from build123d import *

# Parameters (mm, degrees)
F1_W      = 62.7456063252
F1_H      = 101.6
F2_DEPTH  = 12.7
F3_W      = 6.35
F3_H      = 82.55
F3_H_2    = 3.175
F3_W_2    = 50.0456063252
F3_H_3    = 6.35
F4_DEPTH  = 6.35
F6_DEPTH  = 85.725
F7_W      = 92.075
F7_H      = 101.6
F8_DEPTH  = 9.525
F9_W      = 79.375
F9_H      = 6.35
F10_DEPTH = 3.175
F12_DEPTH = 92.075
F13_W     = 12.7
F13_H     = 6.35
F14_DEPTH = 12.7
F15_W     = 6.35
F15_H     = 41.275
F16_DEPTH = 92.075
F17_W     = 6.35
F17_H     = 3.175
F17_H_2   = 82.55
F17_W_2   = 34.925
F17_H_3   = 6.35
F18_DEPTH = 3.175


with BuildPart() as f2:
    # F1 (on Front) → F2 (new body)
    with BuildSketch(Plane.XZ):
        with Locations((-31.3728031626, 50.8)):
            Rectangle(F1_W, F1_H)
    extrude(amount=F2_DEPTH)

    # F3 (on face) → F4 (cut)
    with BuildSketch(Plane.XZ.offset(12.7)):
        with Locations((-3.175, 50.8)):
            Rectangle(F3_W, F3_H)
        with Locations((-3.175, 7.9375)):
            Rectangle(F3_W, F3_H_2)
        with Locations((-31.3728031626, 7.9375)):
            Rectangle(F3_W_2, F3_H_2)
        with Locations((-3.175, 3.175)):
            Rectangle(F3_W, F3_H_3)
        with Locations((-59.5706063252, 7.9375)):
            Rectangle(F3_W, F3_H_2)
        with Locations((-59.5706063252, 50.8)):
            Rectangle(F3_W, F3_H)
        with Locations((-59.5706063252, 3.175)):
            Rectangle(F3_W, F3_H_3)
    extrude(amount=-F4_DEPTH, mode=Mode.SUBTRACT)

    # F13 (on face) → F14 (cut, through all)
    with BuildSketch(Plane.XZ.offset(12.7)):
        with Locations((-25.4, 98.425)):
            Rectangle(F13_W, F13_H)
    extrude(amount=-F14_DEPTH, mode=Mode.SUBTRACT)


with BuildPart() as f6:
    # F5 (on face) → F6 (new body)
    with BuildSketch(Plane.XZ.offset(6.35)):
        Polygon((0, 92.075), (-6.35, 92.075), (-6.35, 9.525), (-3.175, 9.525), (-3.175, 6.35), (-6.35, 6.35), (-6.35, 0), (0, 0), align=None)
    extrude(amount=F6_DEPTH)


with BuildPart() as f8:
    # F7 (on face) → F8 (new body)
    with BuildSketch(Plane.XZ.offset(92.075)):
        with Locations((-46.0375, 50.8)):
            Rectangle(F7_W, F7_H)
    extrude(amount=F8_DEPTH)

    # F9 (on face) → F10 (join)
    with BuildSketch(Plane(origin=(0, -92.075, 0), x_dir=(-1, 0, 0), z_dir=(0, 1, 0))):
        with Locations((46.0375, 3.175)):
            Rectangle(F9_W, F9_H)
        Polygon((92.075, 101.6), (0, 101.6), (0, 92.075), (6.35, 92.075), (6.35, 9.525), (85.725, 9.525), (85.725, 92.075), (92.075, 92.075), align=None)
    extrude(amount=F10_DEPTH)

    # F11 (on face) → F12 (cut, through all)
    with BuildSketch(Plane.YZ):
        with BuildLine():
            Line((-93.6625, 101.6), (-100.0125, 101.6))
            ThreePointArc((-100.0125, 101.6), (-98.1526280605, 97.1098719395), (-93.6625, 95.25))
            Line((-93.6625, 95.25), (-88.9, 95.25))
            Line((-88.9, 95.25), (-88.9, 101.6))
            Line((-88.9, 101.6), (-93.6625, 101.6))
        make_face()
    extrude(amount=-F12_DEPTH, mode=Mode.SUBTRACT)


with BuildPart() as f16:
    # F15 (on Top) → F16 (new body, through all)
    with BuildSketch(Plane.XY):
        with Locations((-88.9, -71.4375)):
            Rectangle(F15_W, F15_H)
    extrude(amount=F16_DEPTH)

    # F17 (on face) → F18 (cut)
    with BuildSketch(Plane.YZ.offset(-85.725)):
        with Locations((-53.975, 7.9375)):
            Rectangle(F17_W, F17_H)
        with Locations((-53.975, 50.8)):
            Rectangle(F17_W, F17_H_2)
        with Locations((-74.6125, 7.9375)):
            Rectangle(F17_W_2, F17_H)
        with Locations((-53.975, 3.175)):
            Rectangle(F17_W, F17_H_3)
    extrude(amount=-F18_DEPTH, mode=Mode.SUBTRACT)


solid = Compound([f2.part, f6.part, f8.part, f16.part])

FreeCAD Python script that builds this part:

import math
import FreeCAD as App
import Part
import Sketcher
from FreeCAD import Vector
Q = App.Units.Quantity

doc = App.newDocument("Part")
body = doc.addObject("PartDesign::Body", "Body")

# Sketch on XZ plane
sketch1 = body.newObject("Sketcher::SketchObject", "Sketch")
sketch1.AttachmentSupport = (doc.getObject("XZ_Plane"), [""])
sketch1.MapMode = "FlatFace"
sketch1.addGeometry([
    Part.LineSegment(Vector(-62.745606, 101.6, 0), Vector(-62.745606, 0, 0)),
    Part.LineSegment(Vector(-62.745606, 0, 0), Vector(0, 0, 0)),
    Part.LineSegment(Vector(0, 0, 0), Vector(0, 101.6, 0)),
    Part.LineSegment(Vector(0, 101.6, 0), Vector(-62.745606, 101.6, 0)),
], False)
sketch1.addConstraint([
    Sketcher.Constraint("Coincident", 0, 2, 1, 1),
    Sketcher.Constraint("Coincident", 1, 2, 2, 1),
    Sketcher.Constraint("Coincident", 2, 2, 3, 1),
    Sketcher.Constraint("Coincident", 3, 2, 0, 1),
    Sketcher.Constraint("Vertical", 0),
    Sketcher.Constraint("Horizontal", 1),
    Sketcher.Constraint("Vertical", 2),
    Sketcher.Constraint("Horizontal", 3),
    Sketcher.Constraint("Coincident", 1, 2, -1, 1),
    Sketcher.Constraint("DistanceY", 0, 2, 0, 1, Q("4 in")),
    Sketcher.Constraint("DistanceX", 1, 1, 1, 2, 62.745606),
])
pad1 = body.newObject("PartDesign::Pad", "Pad")
pad1.Profile = sketch1
pad1.Length = Q("0.5 in")

# Sketch on XZ plane
sketch2 = body.newObject("Sketcher::SketchObject", "Sketch001")
sketch2.AttachmentSupport = (doc.getObject("XZ_Plane"), [""])
sketch2.MapMode = "FlatFace"
sketch2.AttachmentOffset = App.Placement(Vector(0, 0, 0.5 * 25.4), App.Rotation())
sketch2.addGeometry([
    Part.LineSegment(Vector(-6.35, 92.075, 0), Vector(-6.35, 9.525, 0)),  # 0
    Part.LineSegment(Vector(-6.35, 9.525, 0), Vector(-56.395606, 9.525, 0)),  # 1
    Part.LineSegment(Vector(-56.395606, 9.525, 0), Vector(-56.395606, 92.075, 0)),  # 2
    Part.LineSegment(Vector(-56.395606, 92.075, 0), Vector(-62.745606, 92.075, 0)),  # 3
    Part.LineSegment(Vector(-62.745606, 92.075, 0), Vector(-62.745606, 0, 0)),  # 4
    Part.LineSegment(Vector(-62.745606, 0, 0), Vector(-56.395606, 0, 0)),  # 5
    Part.LineSegment(Vector(-56.395606, 0, 0), Vector(-56.395606, 6.35, 0)),  # 6
    Part.LineSegment(Vector(-56.395606, 6.35, 0), Vector(-6.35, 6.35, 0)),  # 7
    Part.LineSegment(Vector(-6.35, 6.35, 0), Vector(-6.35, 0, 0)),  # 8
    Part.LineSegment(Vector(-6.35, 0, 0), Vector(0, 0, 0)),  # 9
    Part.LineSegment(Vector(0, 0, 0), Vector(0, 92.075, 0)),  # 10
    Part.LineSegment(Vector(0, 92.075, 0), Vector(-6.35, 92.075, 0)),  # 11
], False)
sketch2.addConstraint([
    Sketcher.Constraint("Coincident", 0, 2, 1, 1),
    Sketcher.Constraint("Coincident", 1, 2, 2, 1),
    Sketcher.Constraint("Coincident", 2, 2, 3, 1),
    Sketcher.Constraint("Coincident", 3, 2, 4, 1),
    Sketcher.Constraint("Coincident", 4, 2, 5, 1),
    Sketcher.Constraint("Coincident", 5, 2, 6, 1),
    Sketcher.Constraint("Coincident", 6, 2, 7, 1),
    Sketcher.Constraint("Coincident", 7, 2, 8, 1),
    Sketcher.Constraint("Coincident", 8, 2, 9, 1),
    Sketcher.Constraint("Coincident", 9, 2, 10, 1),
    Sketcher.Constraint("Coincident", 10, 2, 11, 1),
    Sketcher.Constraint("Coincident", 11, 2, 0, 1),
    Sketcher.Constraint("Vertical", 0),
    Sketcher.Constraint("Horizontal", 1),
    Sketcher.Constraint("Vertical", 2),
    Sketcher.Constraint("Horizontal", 3),
    Sketcher.Constraint("Vertical", 4),
    Sketcher.Constraint("Horizontal", 5),
    Sketcher.Constraint("Vertical", 6),
    Sketcher.Constraint("Horizontal", 7),
    Sketcher.Constraint("Vertical", 8),
    Sketcher.Constraint("Horizontal", 9),
    Sketcher.Constraint("Vertical", 10),
    Sketcher.Constraint("Horizontal", 11),
    Sketcher.Constraint("Coincident", 9, 2, -1, 1),
    Sketcher.Constraint("PointOnObject", 4, 2, -1),
    Sketcher.Constraint("Horizontal", 3, 2, 10, 2),
    Sketcher.Constraint("Vertical", 2, 2, 5, 2),
    Sketcher.Constraint("Vertical", 0, 2, 7, 2),
    Sketcher.Constraint("Equal", 5, 9),
    Sketcher.Constraint("Equal", 11, 6),
    Sketcher.Constraint("DistanceX", 3, 2, 3, 1, Q("0.25 in")),
    Sketcher.Constraint("DistanceY", 0, 2, 0, 1, Q("3.25 in")),
    Sketcher.Constraint("DistanceY", 4, 2, 4, 1, Q("3.625 in")),
    Sketcher.Constraint("DistanceX", 1, 2, 1, 1, 50.045606),
])
pocket1 = body.newObject("PartDesign::Pocket", "Pocket")
pocket1.Profile = sketch2
pocket1.Length = Q("0.25 in")

# Sketch on XZ plane
sketch3 = body.newObject("Sketcher::SketchObject", "Sketch002")
sketch3.AttachmentSupport = (doc.getObject("XZ_Plane"), [""])
sketch3.MapMode = "FlatFace"
sketch3.AttachmentOffset = App.Placement(Vector(0, 0, 0.5 * 25.4), App.Rotation())
sketch3.addGeometry([
    Part.LineSegment(Vector(-31.75, 101.6, 0), Vector(-31.75, 95.25, 0)),
    Part.LineSegment(Vector(-31.75, 95.25, 0), Vector(-19.05, 95.25, 0)),
    Part.LineSegment(Vector(-19.05, 95.25, 0), Vector(-19.05, 101.6, 0)),
    Part.LineSegment(Vector(-19.05, 101.6, 0), Vector(-31.75, 101.6, 0)),
], False)
sketch3.addConstraint([
    Sketcher.Constraint("Coincident", 0, 2, 1, 1),
    Sketcher.Constraint("Coincident", 1, 2, 2, 1),
    Sketcher.Constraint("Coincident", 2, 2, 3, 1),
    Sketcher.Constraint("Coincident", 3, 2, 0, 1),
    Sketcher.Constraint("Vertical", 0),
    Sketcher.Constraint("Horizontal", 1),
    Sketcher.Constraint("Vertical", 2),
    Sketcher.Constraint("Horizontal", 3),
    Sketcher.Constraint("DistanceX", 1, 1, 1, 2, Q("0.5 in")),
    Sketcher.Constraint("DistanceY", -1, 1, 2, 2, Q("4 in")),
    Sketcher.Constraint("DistanceY", 0, 2, 0, 1, Q("0.25 in")),
    Sketcher.Constraint("DistanceX", 0, 2, -1, 1, Q("1.25 in")),
])
pocket2 = body.newObject("PartDesign::Pocket", "Pocket001")
pocket2.Profile = sketch3
pocket2.Type = "ThroughAll"
body2 = doc.addObject("PartDesign::Body", "Body001")

# Sketch on XZ plane
sketch4 = body2.newObject("Sketcher::SketchObject", "Sketch003")
sketch4.AttachmentSupport = (doc.getObject("XZ_Plane001"), [""])
sketch4.MapMode = "FlatFace"
sketch4.AttachmentOffset = App.Placement(Vector(0, 0, 0.25 * 25.4), App.Rotation())
sketch4.addGeometry([
    Part.LineSegment(Vector(0, 92.075, 0), Vector(-6.35, 92.075, 0)),  # 0
    Part.LineSegment(Vector(-6.35, 92.075, 0), Vector(-6.35, 9.525, 0)),  # 1
    Part.LineSegment(Vector(-6.35, 9.525, 0), Vector(-3.175, 9.525, 0)),  # 2
    Part.LineSegment(Vector(-3.175, 9.525, 0), Vector(-3.175, 6.35, 0)),  # 3
    Part.LineSegment(Vector(-3.175, 6.35, 0), Vector(-6.35, 6.35, 0)),  # 4
    Part.LineSegment(Vector(-6.35, 6.35, 0), Vector(-6.35, 0, 0)),  # 5
    Part.LineSegment(Vector(-6.35, 0, 0), Vector(0, 0, 0)),  # 6
    Part.LineSegment(Vector(0, 0, 0), Vector(0, 92.075, 0)),  # 7
], False)
sketch4.addConstraint([
    Sketcher.Constraint("Coincident", 0, 2, 1, 1),
    Sketcher.Constraint("Coincident", 1, 2, 2, 1),
    Sketcher.Constraint("Coincident", 2, 2, 3, 1),
    Sketcher.Constraint("Coincident", 3, 2, 4, 1),
    Sketcher.Constraint("Coincident", 4, 2, 5, 1),
    Sketcher.Constraint("Coincident", 5, 2, 6, 1),
    Sketcher.Constraint("Coincident", 6, 2, 7, 1),
    Sketcher.Constraint("Coincident", 7, 2, 0, 1),
    Sketcher.Constraint("Horizontal", 0),
    Sketcher.Constraint("Vertical", 1),
    Sketcher.Constraint("Horizontal", 2),
    Sketcher.Constraint("Vertical", 3),
    Sketcher.Constraint("Horizontal", 4),
    Sketcher.Constraint("Vertical", 5),
    Sketcher.Constraint("Horizontal", 6),
    Sketcher.Constraint("Vertical", 7),
    Sketcher.Constraint("Coincident", 6, 2, -1, 1),
    Sketcher.Constraint("Vertical", 1, 2, 4, 2),
    Sketcher.Constraint("Equal", 4, 3),
    Sketcher.Constraint("Equal", 6, 5),
    Sketcher.Constraint("DistanceX", 0, 2, 0, 1, Q("0.25 in")),
    Sketcher.Constraint("DistanceY", 1, 2, 1, 1, Q("3.25 in")),
    Sketcher.Constraint("DistanceX", 2, 1, 2, 2, Q("0.125 in")),
])
pad2 = body2.newObject("PartDesign::Pad", "Pad001")
pad2.Profile = sketch4
pad2.Length = Q("3.375 in")
body3 = doc.addObject("PartDesign::Body", "Body002")

# Sketch on XZ plane
sketch5 = body3.newObject("Sketcher::SketchObject", "Sketch004")
sketch5.AttachmentSupport = (doc.getObject("XZ_Plane002"), [""])
sketch5.MapMode = "FlatFace"
sketch5.AttachmentOffset = App.Placement(Vector(0, 0, 3.625 * 25.4), App.Rotation())
sketch5.addGeometry([
    Part.LineSegment(Vector(-92.075, 101.6, 0), Vector(-92.075, 0, 0)),
    Part.LineSegment(Vector(-92.075, 0, 0), Vector(0, 0, 0)),
    Part.LineSegment(Vector(0, 0, 0), Vector(0, 101.6, 0)),
    Part.LineSegment(Vector(0, 101.6, 0), Vector(-92.075, 101.6, 0)),
], False)
sketch5.addConstraint([
    Sketcher.Constraint("Coincident", 0, 2, 1, 1),
    Sketcher.Constraint("Coincident", 1, 2, 2, 1),
    Sketcher.Constraint("Coincident", 2, 2, 3, 1),
    Sketcher.Constraint("Coincident", 3, 2, 0, 1),
    Sketcher.Constraint("Vertical", 0),
    Sketcher.Constraint("Horizontal", 1),
    Sketcher.Constraint("Vertical", 2),
    Sketcher.Constraint("Horizontal", 3),
    Sketcher.Constraint("Coincident", 1, 2, -1, 1),
    Sketcher.Constraint("DistanceY", 0, 2, 0, 1, Q("4 in")),
    Sketcher.Constraint("DistanceX", 1, 1, 1, 2, Q("3.625 in")),
])
pad3 = body3.newObject("PartDesign::Pad", "Pad002")
pad3.Profile = sketch5
pad3.Length = Q("0.375 in")

# Sketch on XZ plane
sketch6 = body3.newObject("Sketcher::SketchObject", "Sketch005")
sketch6.AttachmentSupport = (doc.getObject("XZ_Plane002"), [""])
sketch6.MapMode = "FlatFace"
sketch6.AttachmentOffset = App.Placement(Vector(0, 0, 3.625 * 25.4), App.Rotation())
sketch6.addGeometry([
    Part.LineSegment(Vector(-6.35, 6.35, 0), Vector(-6.35, 0, 0)),  # 0
    Part.LineSegment(Vector(-6.35, 0, 0), Vector(-85.725, 0, 0)),  # 1
    Part.LineSegment(Vector(-85.725, 0, 0), Vector(-85.725, 6.35, 0)),  # 2
    Part.LineSegment(Vector(-85.725, 6.35, 0), Vector(-6.35, 6.35, 0)),  # 3
    Part.LineSegment(Vector(-92.075, 101.6, 0), Vector(0, 101.6, 0)),  # 4
    Part.LineSegment(Vector(0, 101.6, 0), Vector(0, 92.075, 0)),  # 5
    Part.LineSegment(Vector(0, 92.075, 0), Vector(-6.35, 92.075, 0)),  # 6
    Part.LineSegment(Vector(-6.35, 92.075, 0), Vector(-6.35, 9.525, 0)),  # 7
    Part.LineSegment(Vector(-6.35, 9.525, 0), Vector(-85.725, 9.525, 0)),  # 8
    Part.LineSegment(Vector(-85.725, 9.525, 0), Vector(-85.725, 92.075, 0)),  # 9
    Part.LineSegment(Vector(-85.725, 92.075, 0), Vector(-92.075, 92.075, 0)),  # 10
    Part.LineSegment(Vector(-92.075, 92.075, 0), Vector(-92.075, 101.6, 0)),  # 11
], False)
sketch6.addConstraint([
    Sketcher.Constraint("Coincident", 0, 2, 1, 1),
    Sketcher.Constraint("Coincident", 1, 2, 2, 1),
    Sketcher.Constraint("Coincident", 2, 2, 3, 1),
    Sketcher.Constraint("Coincident", 3, 2, 0, 1),
    Sketcher.Constraint("Coincident", 4, 2, 5, 1),
    Sketcher.Constraint("Coincident", 5, 2, 6, 1),
    Sketcher.Constraint("Coincident", 6, 2, 7, 1),
    Sketcher.Constraint("Coincident", 7, 2, 8, 1),
    Sketcher.Constraint("Coincident", 8, 2, 9, 1),
    Sketcher.Constraint("Coincident", 9, 2, 10, 1),
    Sketcher.Constraint("Coincident", 10, 2, 11, 1),
    Sketcher.Constraint("Coincident", 11, 2, 4, 1),
    Sketcher.Constraint("Vertical", 0),
    Sketcher.Constraint("Horizontal", 1),
    Sketcher.Constraint("Vertical", 2),
    Sketcher.Constraint("Horizontal", 3),
    Sketcher.Constraint("Horizontal", 4),
    Sketcher.Constraint("Vertical", 5),
    Sketcher.Constraint("Horizontal", 6),
    Sketcher.Constraint("Vertical", 7),
    Sketcher.Constraint("Horizontal", 8),
    Sketcher.Constraint("Vertical", 9),
    Sketcher.Constraint("Horizontal", 10),
    Sketcher.Constraint("Vertical", 11),
    Sketcher.Constraint("PointOnObject", 0, 2, -1),
    Sketcher.Constraint("PointOnObject", 4, 2, -2),
    Sketcher.Constraint("Horizontal", 6, 2, 9, 2),
    Sketcher.Constraint("Vertical", 3, 2, 6, 2),
    Sketcher.Constraint("Vertical", 2, 2, 8, 2),
    Sketcher.Constraint("Equal", 6, 10),
    Sketcher.Constraint("Equal", 10, 0),
    Sketcher.Constraint("DistanceY", -1, 1, 4, 2, Q("4 in")),
    Sketcher.Constraint("DistanceX", 6, 2, 6, 1, Q("0.25 in")),
    Sketcher.Constraint("DistanceY", 7, 2, 7, 1, Q("3.25 in")),
    Sketcher.Constraint("DistanceX", 1, 2, 1, 1, Q("3.125 in")),
    Sketcher.Constraint("DistanceY", 5, 2, 5, 1, Q("0.375 in")),
])
pad4 = body3.newObject("PartDesign::Pad", "Pad003")
pad4.Profile = sketch6
pad4.Length = Q("0.125 in")
pad4.Reversed = True

# Sketch on YZ plane
sketch7 = body3.newObject("Sketcher::SketchObject", "Sketch006")
sketch7.AttachmentSupport = (doc.getObject("YZ_Plane002"), [""])
sketch7.MapMode = "FlatFace"
sketch7.addGeometry([
    Part.ArcOfCircle(Part.Circle(Vector(-93.6625, 101.6, 0), Vector(0, 0, 1), 6.35), math.radians(180), math.radians(270)),
    Part.LineSegment(Vector(-93.6625, 95.25, 0), Vector(-88.9, 95.25, 0)),
    Part.LineSegment(Vector(-88.9, 95.25, 0), Vector(-88.9, 101.6, 0)),
    Part.LineSegment(Vector(-88.9, 101.6, 0), Vector(-100.0125, 101.6, 0)),
], False)
sketch7.addConstraint([
    Sketcher.Constraint("Tangent", 0, 2, 1, 1),
    Sketcher.Constraint("Coincident", 1, 2, 2, 1),
    Sketcher.Constraint("Coincident", 2, 2, 3, 1),
    Sketcher.Constraint("Coincident", 3, 2, 0, 1),
    Sketcher.Constraint("Horizontal", 1),
    Sketcher.Constraint("Vertical", 2),
    Sketcher.Constraint("Horizontal", 3),
    Sketcher.Constraint("Horizontal", 0, 3, 2, 2),
    Sketcher.Constraint("Radius", 0, Q("0.25 in")),
    Sketcher.Constraint("DistanceY", -1, 1, 0, 3, Q("4 in")),
    Sketcher.Constraint("DistanceX", 1, 2, -1, 1, Q("3.5 in")),
    Sketcher.Constraint("DistanceX", 1, 1, 1, 2, Q("0.1875 in")),
])
pocket3 = body3.newObject("PartDesign::Pocket", "Pocket002")
pocket3.Profile = sketch7
pocket3.Type = "ThroughAll"
body4 = doc.addObject("PartDesign::Body", "Body003")

# Sketch on XY plane
sketch8 = body4.newObject("Sketcher::SketchObject", "Sketch007")
sketch8.AttachmentSupport = (doc.getObject("XY_Plane003"), [""])
sketch8.MapMode = "FlatFace"
sketch8.addGeometry([
    Part.LineSegment(Vector(-92.075, -50.8, 0), Vector(-92.075, -92.075, 0)),
    Part.LineSegment(Vector(-92.075, -92.075, 0), Vector(-85.725, -92.075, 0)),
    Part.LineSegment(Vector(-85.725, -92.075, 0), Vector(-85.725, -50.8, 0)),
    Part.LineSegment(Vector(-85.725, -50.8, 0), Vector(-92.075, -50.8, 0)),
], False)
sketch8.addConstraint([
    Sketcher.Constraint("Coincident", 0, 2, 1, 1),
    Sketcher.Constraint("Coincident", 1, 2, 2, 1),
    Sketcher.Constraint("Coincident", 2, 2, 3, 1),
    Sketcher.Constraint("Coincident", 3, 2, 0, 1),
    Sketcher.Constraint("Vertical", 0),
    Sketcher.Constraint("Horizontal", 1),
    Sketcher.Constraint("Vertical", 2),
    Sketcher.Constraint("Horizontal", 3),
    Sketcher.Constraint("DistanceY", 2, 2, -1, 1, Q("2 in")),
    Sketcher.Constraint("DistanceX", 1, 1, 1, 2, Q("0.25 in")),
    Sketcher.Constraint("DistanceY", 0, 2, 0, 1, Q("1.625 in")),
    Sketcher.Constraint("DistanceX", 0, 2, -1, 1, Q("3.625 in")),
])
pad5 = body4.newObject("PartDesign::Pad", "Pad004")
pad5.Profile = sketch8
pad5.Length = Q("3.625 in")

# Sketch on YZ plane
sketch9 = body4.newObject("Sketcher::SketchObject", "Sketch008")
sketch9.AttachmentSupport = (doc.getObject("YZ_Plane003"), [""])
sketch9.MapMode = "FlatFace"
sketch9.AttachmentOffset = App.Placement(Vector(0, 0, -3.375 * 25.4), App.Rotation())
sketch9.addGeometry([
    Part.LineSegment(Vector(-50.8, 92.075, 0), Vector(-57.15, 92.075, 0)),  # 0
    Part.LineSegment(Vector(-57.15, 92.075, 0), Vector(-57.15, 9.525, 0)),  # 1
    Part.LineSegment(Vector(-57.15, 9.525, 0), Vector(-92.075, 9.525, 0)),  # 2
    Part.LineSegment(Vector(-92.075, 9.525, 0), Vector(-92.075, 6.35, 0)),  # 3
    Part.LineSegment(Vector(-92.075, 6.35, 0), Vector(-57.15, 6.35, 0)),  # 4
    Part.LineSegment(Vector(-57.15, 6.35, 0), Vector(-57.15, 0, 0)),  # 5
    Part.LineSegment(Vector(-57.15, 0, 0), Vector(-50.8, 0, 0)),  # 6
    Part.LineSegment(Vector(-50.8, 0, 0), Vector(-50.8, 92.075, 0)),  # 7
], False)
sketch9.addConstraint([
    Sketcher.Constraint("Coincident", 0, 2, 1, 1),
    Sketcher.Constraint("Coincident", 1, 2, 2, 1),
    Sketcher.Constraint("Coincident", 2, 2, 3, 1),
    Sketcher.Constraint("Coincident", 3, 2, 4, 1),
    Sketcher.Constraint("Coincident", 4, 2, 5, 1),
    Sketcher.Constraint("Coincident", 5, 2, 6, 1),
    Sketcher.Constraint("Coincident", 6, 2, 7, 1),
    Sketcher.Constraint("Coincident", 7, 2, 0, 1),
    Sketcher.Constraint("Horizontal", 0),
    Sketcher.Constraint("Vertical", 1),
    Sketcher.Constraint("Horizontal", 2),
    Sketcher.Constraint("Vertical", 3),
    Sketcher.Constraint("Horizontal", 4),
    Sketcher.Constraint("Vertical", 5),
    Sketcher.Constraint("Horizontal", 6),
    Sketcher.Constraint("Vertical", 7),
    Sketcher.Constraint("PointOnObject", 5, 2, -1),
    Sketcher.Constraint("Vertical", 1, 2, 4, 2),
    Sketcher.Constraint("Equal", 6, 5),
    Sketcher.Constraint("DistanceX", 6, 2, -1, 1, Q("2 in")),
    Sketcher.Constraint("DistanceX", 0, 2, 0, 1, Q("0.25 in")),
    Sketcher.Constraint("DistanceY", 1, 2, 1, 1, Q("3.25 in")),
    Sketcher.Constraint("DistanceX", 2, 2, 2, 1, Q("1.375 in")),
    Sketcher.Constraint("DistanceY", 3, 2, 3, 1, Q("0.125 in")),
])
pocket4 = body4.newObject("PartDesign::Pocket", "Pocket003")
pocket4.Profile = sketch9
pocket4.Length = Q("0.125 in")

doc.recompute()
